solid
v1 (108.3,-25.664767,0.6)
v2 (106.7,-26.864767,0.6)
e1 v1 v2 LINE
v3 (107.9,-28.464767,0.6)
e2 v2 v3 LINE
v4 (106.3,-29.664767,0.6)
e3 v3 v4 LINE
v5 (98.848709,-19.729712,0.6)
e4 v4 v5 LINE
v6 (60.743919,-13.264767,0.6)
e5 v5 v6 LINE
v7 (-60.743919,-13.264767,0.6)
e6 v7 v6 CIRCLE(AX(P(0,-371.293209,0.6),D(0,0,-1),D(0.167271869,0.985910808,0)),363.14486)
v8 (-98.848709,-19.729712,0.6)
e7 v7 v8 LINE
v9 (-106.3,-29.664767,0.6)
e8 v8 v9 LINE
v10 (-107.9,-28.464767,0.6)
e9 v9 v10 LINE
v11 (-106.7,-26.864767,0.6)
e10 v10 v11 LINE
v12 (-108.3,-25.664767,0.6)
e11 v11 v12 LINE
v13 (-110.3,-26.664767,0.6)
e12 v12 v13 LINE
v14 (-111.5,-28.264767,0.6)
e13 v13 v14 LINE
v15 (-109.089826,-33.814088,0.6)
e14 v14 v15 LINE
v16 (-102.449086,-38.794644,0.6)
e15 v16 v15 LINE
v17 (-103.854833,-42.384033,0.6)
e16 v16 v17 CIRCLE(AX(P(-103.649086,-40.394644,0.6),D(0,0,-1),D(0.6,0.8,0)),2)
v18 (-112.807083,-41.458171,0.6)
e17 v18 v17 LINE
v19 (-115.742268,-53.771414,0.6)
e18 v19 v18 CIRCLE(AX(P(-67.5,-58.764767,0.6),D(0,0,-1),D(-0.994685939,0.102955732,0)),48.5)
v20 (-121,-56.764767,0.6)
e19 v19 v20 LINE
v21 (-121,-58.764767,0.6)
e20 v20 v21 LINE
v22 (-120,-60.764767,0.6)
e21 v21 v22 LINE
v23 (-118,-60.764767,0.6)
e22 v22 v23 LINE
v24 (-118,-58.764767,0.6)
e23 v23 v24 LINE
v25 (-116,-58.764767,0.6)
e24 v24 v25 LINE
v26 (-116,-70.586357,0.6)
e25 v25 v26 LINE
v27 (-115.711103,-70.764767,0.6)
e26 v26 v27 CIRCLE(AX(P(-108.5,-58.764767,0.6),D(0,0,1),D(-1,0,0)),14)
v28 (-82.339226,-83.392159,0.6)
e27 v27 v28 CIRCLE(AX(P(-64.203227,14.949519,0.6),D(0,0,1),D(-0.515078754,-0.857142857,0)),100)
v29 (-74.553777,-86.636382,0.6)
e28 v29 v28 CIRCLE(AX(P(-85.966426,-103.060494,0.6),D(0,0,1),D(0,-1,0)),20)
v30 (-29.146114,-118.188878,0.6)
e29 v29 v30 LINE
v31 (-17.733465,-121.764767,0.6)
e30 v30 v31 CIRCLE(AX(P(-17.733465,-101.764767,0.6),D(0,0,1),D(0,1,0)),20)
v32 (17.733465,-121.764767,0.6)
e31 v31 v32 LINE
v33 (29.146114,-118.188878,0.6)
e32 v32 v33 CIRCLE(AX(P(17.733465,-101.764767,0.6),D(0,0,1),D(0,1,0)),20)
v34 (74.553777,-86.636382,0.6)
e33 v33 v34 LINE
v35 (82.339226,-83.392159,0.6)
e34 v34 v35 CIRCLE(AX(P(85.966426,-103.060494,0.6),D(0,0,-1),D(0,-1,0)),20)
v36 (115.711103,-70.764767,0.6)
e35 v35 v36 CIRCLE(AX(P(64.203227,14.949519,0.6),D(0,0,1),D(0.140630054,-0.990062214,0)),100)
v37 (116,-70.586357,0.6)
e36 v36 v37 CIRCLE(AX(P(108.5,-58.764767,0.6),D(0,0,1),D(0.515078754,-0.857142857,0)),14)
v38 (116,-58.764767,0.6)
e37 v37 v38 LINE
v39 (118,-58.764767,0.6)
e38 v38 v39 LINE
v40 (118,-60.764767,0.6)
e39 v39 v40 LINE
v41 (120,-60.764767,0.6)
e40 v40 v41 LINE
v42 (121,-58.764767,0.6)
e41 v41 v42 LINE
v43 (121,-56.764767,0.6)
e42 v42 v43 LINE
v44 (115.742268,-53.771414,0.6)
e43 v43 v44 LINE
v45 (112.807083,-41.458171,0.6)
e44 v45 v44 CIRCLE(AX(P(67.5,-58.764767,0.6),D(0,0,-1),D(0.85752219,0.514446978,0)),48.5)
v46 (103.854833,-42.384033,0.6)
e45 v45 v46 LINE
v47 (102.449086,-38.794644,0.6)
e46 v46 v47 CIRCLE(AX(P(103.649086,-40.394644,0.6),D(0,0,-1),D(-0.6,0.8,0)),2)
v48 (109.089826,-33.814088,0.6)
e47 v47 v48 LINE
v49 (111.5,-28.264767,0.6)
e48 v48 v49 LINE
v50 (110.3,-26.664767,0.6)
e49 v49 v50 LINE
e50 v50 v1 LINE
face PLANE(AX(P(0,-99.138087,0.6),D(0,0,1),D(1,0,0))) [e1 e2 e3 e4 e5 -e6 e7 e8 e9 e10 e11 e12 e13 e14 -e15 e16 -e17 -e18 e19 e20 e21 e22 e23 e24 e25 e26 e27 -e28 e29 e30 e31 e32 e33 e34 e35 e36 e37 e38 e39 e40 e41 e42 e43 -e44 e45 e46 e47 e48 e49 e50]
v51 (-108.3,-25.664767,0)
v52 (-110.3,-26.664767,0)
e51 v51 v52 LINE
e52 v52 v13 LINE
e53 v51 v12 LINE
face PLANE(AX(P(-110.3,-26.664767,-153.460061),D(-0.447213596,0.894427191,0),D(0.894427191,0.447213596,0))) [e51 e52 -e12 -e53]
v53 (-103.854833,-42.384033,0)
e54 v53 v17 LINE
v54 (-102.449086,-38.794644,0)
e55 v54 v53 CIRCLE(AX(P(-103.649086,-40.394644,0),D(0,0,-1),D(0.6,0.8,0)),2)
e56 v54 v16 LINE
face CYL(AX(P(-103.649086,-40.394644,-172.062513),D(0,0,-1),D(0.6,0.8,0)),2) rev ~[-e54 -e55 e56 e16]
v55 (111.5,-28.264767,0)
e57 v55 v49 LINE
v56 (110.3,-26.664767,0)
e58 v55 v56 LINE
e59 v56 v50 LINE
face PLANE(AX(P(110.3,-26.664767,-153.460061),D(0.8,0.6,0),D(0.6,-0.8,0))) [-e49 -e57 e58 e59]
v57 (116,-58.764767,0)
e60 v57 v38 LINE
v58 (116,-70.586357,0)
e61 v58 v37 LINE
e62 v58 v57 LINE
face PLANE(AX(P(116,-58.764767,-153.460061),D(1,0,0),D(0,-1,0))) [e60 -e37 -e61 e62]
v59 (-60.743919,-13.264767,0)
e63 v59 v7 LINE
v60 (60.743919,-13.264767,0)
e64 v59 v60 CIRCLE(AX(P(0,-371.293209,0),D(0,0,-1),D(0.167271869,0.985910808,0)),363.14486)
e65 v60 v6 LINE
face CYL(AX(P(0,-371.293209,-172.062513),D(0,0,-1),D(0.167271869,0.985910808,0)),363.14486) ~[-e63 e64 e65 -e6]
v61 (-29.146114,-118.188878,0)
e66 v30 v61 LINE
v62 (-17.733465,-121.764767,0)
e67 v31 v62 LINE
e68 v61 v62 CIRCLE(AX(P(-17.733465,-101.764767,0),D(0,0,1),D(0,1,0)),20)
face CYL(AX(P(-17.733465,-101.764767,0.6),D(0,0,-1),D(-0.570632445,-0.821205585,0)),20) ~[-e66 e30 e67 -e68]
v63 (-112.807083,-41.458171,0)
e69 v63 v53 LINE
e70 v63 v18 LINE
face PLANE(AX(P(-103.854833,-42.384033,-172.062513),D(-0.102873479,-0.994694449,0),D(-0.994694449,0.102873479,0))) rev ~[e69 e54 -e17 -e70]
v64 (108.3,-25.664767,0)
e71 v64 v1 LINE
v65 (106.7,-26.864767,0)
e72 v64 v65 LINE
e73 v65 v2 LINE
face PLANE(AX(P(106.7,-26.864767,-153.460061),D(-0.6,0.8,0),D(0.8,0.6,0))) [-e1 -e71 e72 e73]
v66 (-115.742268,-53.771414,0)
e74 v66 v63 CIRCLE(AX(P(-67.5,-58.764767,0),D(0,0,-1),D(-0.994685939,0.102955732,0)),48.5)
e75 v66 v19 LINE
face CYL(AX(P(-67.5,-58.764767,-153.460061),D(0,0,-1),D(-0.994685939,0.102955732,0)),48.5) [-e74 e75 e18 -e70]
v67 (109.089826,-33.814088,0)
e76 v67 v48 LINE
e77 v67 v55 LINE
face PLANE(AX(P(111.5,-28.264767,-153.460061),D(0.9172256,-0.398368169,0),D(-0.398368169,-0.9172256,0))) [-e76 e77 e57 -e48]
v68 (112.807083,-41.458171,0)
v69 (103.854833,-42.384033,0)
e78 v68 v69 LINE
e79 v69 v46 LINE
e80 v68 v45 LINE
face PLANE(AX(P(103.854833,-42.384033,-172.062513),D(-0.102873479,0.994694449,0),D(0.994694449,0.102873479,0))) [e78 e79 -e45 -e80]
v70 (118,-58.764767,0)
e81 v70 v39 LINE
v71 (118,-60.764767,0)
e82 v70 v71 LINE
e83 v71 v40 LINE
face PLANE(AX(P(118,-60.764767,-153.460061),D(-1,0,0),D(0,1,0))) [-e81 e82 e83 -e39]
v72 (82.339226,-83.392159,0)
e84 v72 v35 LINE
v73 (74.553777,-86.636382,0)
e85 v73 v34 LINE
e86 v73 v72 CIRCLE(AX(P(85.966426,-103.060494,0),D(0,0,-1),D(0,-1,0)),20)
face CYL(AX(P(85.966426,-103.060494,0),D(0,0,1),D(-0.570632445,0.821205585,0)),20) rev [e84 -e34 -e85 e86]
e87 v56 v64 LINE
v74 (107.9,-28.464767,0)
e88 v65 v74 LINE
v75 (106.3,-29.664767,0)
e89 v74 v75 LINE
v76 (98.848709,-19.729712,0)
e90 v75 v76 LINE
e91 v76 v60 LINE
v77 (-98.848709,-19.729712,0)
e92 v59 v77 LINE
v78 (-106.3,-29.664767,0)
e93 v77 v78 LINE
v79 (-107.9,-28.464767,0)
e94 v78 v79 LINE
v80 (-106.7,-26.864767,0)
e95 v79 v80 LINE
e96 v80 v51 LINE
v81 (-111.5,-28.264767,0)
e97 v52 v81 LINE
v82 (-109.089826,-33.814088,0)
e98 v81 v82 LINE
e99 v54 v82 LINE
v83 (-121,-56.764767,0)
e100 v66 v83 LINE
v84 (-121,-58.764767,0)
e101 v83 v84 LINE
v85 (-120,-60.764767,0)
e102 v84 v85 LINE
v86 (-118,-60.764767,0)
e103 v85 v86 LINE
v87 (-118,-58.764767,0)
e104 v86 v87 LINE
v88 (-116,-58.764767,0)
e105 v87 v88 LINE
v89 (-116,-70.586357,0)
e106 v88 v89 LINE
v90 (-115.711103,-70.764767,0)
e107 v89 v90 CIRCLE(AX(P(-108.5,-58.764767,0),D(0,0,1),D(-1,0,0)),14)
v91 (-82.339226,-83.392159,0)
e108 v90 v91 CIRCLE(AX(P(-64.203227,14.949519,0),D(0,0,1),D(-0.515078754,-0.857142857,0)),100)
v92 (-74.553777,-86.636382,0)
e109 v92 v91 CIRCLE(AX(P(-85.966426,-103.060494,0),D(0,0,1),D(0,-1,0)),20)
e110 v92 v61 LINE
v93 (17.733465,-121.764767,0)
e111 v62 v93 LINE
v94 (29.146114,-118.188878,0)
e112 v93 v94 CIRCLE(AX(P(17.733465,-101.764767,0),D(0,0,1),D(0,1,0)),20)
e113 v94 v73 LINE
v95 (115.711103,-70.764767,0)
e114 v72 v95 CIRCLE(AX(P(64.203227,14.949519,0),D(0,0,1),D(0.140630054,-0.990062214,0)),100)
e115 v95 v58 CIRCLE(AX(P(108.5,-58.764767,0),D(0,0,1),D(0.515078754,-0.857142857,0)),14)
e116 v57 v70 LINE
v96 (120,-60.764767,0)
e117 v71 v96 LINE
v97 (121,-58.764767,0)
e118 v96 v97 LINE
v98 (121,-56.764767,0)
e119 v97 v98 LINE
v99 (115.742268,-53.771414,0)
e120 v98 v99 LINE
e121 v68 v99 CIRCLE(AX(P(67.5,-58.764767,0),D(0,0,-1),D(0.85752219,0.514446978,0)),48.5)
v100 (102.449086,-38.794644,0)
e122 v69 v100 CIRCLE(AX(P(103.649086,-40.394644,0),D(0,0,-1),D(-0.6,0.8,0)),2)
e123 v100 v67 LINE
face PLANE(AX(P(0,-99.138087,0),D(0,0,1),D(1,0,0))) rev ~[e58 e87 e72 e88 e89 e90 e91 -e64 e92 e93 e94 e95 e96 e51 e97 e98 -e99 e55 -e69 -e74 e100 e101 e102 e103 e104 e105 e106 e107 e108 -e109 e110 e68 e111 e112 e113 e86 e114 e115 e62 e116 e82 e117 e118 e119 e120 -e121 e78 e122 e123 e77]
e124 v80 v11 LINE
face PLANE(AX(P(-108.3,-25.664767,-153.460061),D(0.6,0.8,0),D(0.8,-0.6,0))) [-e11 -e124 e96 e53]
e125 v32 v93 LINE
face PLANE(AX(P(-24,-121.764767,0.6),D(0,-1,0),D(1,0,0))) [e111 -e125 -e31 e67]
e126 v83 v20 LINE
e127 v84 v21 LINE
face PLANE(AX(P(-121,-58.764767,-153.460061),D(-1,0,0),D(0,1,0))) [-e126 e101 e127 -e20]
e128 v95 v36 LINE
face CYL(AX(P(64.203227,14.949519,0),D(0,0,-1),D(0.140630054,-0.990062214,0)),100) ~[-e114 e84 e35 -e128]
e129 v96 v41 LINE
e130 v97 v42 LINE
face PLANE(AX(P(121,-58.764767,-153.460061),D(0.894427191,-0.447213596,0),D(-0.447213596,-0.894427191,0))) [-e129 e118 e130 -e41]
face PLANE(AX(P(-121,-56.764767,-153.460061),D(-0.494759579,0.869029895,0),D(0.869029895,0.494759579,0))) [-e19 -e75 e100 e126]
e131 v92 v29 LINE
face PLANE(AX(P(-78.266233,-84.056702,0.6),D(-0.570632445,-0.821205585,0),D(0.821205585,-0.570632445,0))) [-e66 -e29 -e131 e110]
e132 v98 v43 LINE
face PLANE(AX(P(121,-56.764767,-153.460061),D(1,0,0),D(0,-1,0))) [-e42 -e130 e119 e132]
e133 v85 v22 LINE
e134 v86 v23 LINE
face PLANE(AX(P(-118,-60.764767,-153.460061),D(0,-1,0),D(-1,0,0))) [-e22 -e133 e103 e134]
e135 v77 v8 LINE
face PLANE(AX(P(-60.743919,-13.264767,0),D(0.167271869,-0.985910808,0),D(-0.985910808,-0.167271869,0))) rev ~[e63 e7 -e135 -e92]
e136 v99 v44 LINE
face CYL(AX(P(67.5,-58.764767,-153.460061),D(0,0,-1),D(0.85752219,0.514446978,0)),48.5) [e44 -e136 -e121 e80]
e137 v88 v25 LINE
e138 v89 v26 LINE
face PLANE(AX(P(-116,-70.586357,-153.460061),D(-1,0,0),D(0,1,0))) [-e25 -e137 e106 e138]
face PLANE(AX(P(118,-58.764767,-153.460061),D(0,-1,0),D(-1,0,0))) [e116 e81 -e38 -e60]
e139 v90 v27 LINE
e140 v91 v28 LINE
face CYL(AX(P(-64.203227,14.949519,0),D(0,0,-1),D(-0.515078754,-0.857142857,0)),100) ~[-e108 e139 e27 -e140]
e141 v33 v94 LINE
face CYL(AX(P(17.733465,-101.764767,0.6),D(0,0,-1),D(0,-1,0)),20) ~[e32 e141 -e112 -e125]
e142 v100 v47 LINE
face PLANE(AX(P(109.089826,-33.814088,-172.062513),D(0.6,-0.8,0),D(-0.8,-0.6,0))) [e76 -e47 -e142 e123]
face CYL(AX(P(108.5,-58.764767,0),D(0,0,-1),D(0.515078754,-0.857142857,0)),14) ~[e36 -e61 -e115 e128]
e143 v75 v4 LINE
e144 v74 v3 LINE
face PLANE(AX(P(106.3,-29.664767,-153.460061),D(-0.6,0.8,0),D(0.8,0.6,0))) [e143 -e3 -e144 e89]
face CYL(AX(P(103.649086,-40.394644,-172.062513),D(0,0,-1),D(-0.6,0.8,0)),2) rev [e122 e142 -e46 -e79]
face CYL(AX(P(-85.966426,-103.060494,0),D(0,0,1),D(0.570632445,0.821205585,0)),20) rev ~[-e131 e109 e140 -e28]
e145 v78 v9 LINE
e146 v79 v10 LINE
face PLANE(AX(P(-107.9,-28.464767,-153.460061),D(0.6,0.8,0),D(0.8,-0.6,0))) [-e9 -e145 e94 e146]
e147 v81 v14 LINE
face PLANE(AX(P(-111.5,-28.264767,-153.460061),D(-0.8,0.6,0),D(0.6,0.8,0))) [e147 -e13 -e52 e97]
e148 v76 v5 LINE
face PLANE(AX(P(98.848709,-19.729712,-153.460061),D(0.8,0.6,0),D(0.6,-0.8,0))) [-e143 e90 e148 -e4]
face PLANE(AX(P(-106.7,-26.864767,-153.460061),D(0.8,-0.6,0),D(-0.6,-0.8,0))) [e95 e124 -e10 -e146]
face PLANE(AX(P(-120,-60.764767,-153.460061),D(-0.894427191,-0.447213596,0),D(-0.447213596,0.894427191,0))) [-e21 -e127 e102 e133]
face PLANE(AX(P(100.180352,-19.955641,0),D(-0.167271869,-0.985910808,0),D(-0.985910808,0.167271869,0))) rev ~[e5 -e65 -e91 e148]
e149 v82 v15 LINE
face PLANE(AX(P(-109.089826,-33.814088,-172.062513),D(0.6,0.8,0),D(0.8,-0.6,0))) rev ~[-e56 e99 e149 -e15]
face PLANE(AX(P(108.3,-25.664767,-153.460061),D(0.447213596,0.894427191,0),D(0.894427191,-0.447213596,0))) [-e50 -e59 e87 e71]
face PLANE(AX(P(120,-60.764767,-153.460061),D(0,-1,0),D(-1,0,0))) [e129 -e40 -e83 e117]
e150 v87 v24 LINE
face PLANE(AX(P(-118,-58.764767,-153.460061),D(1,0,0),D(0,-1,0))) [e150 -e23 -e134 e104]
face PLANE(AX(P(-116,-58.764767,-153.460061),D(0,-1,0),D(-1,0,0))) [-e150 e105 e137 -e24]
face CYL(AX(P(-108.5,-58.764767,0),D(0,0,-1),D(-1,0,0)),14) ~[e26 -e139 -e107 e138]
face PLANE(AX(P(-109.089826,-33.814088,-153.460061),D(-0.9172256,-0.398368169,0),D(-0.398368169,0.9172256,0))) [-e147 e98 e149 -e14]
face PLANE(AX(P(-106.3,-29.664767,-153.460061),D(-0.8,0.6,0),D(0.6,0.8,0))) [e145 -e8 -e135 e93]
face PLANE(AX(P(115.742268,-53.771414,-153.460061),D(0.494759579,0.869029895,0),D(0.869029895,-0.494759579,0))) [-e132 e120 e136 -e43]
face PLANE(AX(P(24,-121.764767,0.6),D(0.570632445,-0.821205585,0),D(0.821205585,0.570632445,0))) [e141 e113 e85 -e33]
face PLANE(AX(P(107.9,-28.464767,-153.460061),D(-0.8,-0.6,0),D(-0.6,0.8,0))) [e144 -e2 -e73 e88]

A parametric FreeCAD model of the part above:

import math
import FreeCAD as App
import Part
import Sketcher
Q = App.Units.Quantity


def edges_at(feature, points):
    """Names of the edges that pass closest to the given points."""
    edges = feature.Shape.Edges
    near = lambda p: min(range(len(edges)), key=lambda i: edges[i].distToShape(Part.Vertex(*p))[0])
    return sorted({f"Edge{near(p) + 1}" for p in points})

doc = App.newDocument("Part")
params = doc.addObject("Spreadsheet::Sheet", "Params")
for row, (alias, value) in enumerate([
    ("sketch1_radius", "100 mm"),
    ("sketch1_radius2", "14 mm"),
    ("sketch1_radius3", "55 mm"),
    ("sketch1_radius4", "20 mm"),
    ("sketch1_radius5", "25 mm"),
    ("pad1_length", "0.6 mm"),
    ("sketch2_radius", "20 mm"),
    ("sketch2_radius2", "55 mm"),
    ("sketch2_radius3", "14 mm"),
    ("sketch2_radius4", "48.5 mm"),
    ("sketch2_width", "2 mm"),
    ("sketch3_width", "48 mm"),
    ("pad2_length", "0.6 mm"),
    ("fillet_radius", "20 mm"),
    ("sketch4_height", "30 mm"),
    ("sketch5_radius", "2 mm"),
    ("sketch5_radius2", "48.5 mm"),
    ("sketch5_length", "9 mm"),
    ("sketch5_width", "1.2 mm"),
], start=1):
    params.set(f"A{row}", alias)
    params.set(f"B{row}", "=" + value)
    params.setAlias(f"B{row}", alias)

body = doc.addObject("PartDesign::Body", "Body")

sketch1 = body.newObject("Sketcher::SketchObject", "Sketch")
sketch1.AttachmentSupport = (doc.getObject("XY_Plane"), [""])
sketch1.MapMode = "FlatFace"
sketch1.addGeometry(Part.LineSegment(App.Vector(-24, -91.764767, 0), App.Vector(24, -91.764767, 0)), False)
sketch1.addGeometry(Part.LineSegment(App.Vector(24, -91.764767, 0), App.Vector(78.266233, -84.056702, 0)), False)
sketch1.addGeometry(Part.ArcOfCircle(Part.Circle(App.Vector(64.203227, 14.949519, 0), App.Vector(0, 0, 1), 100), math.radians(-81.915694), math.radians(-58.997281)), False)
sketch1.addGeometry(Part.ArcOfCircle(Part.Circle(App.Vector(108.5, -58.764767, 0), App.Vector(0, 0, 1), 14), math.radians(-58.997281), math.radians(0)), False)
sketch1.addGeometry(Part.ArcOfCircle(Part.Circle(App.Vector(67.5, -58.764767, 0), App.Vector(0, 0, 1), 55), math.radians(0), math.radians(33.055731)), False)
sketch1.addGeometry(Part.ArcOfCircle(Part.Circle(App.Vector(96.834914, -39.673858, 0), App.Vector(0, 0, 1), 20), math.radians(33.055731), math.radians(80.370763)), False)
sketch1.addGeometry(Part.LineSegment(App.Vector(100.180352, -19.955641, 0), App.Vector(60.743919, -13.264767, 0)), False)
sketch1.addGeometry(Part.ArcOfCircle(Part.Circle(App.Vector(64.925716, 11.383003, 0), App.Vector(0, 0, 1), 25), math.radians(-149.156501), math.radians(-99.629237)), False)
sketch1.addGeometry(Part.ArcOfCircle(Part.Circle(App.Vector(24.572883, -12.713654, 0), App.Vector(0, 0, 1), 22), math.radians(30.843499), math.radians(83.818374)), False)
sketch1.addGeometry(Part.LineSegment(App.Vector(26.941855, 9.158428, 0), App.Vector(17, 10.235233, 0)), False)
sketch1.addGeometry(Part.LineSegment(App.Vector(17, 10.235233, 0), App.Vector(10, 0, 0)), False)
sketch1.addGeometry(Part.LineSegment(App.Vector(10, 0, 0), App.Vector(-10, 0, 0)), False)
sketch1.addGeometry(Part.LineSegment(App.Vector(-10, 0, 0), App.Vector(-17, 10.235233, 0)), False)
sketch1.addGeometry(Part.LineSegment(App.Vector(-17, 10.235233, 0), App.Vector(-26.941855, 9.158428, 0)), False)
sketch1.addGeometry(Part.ArcOfCircle(Part.Circle(App.Vector(-24.572883, -12.713654, 0), App.Vector(0, 0, 1), 22), math.radians(96.181626), math.radians(149.156501)), False)
sketch1.addGeometry(Part.ArcOfCircle(Part.Circle(App.Vector(-64.925716, 11.383003, 0), App.Vector(0, 0, 1), 25), math.radians(-80.370763), math.radians(-30.843499)), False)
sketch1.addGeometry(Part.LineSegment(App.Vector(-60.743919, -13.264767, 0), App.Vector(-100.180352, -19.955641, 0)), False)
sketch1.addGeometry(Part.ArcOfCircle(Part.Circle(App.Vector(-96.834914, -39.673858, 0), App.Vector(0, 0, 1), 20), math.radians(99.629237), math.radians(146.944269)), False)
sketch1.addGeometry(Part.ArcOfCircle(Part.Circle(App.Vector(-67.5, -58.764767, 0), App.Vector(0, 0, 1), 55), math.radians(146.944269), math.radians(180)), False)
sketch1.addGeometry(Part.ArcOfCircle(Part.Circle(App.Vector(-108.5, -58.764767, 0), App.Vector(0, 0, 1), 14), math.radians(180), math.radians(238.997281)), False)
sketch1.addGeometry(Part.ArcOfCircle(Part.Circle(App.Vector(-64.203227, 14.949519, 0), App.Vector(0, 0, 1), 100), math.radians(-121.002719), math.radians(-98.084306)), False)
sketch1.addGeometry(Part.LineSegment(App.Vector(-78.266233, -84.056702, 0), App.Vector(-24, -91.764767, 0)), False)
sketch1.addConstraint(Sketcher.Constraint("Coincident", 0, 2, 1, 1))
sketch1.addConstraint(Sketcher.Constraint("Tangent", 1, 2, 2, 1))
sketch1.addConstraint(Sketcher.Constraint("Tangent", 2, 2, 3, 1))
sketch1.addConstraint(Sketcher.Constraint("Tangent", 3, 2, 4, 1))
sketch1.addConstraint(Sketcher.Constraint("Tangent", 4, 2, 5, 1))
sketch1.addConstraint(Sketcher.Constraint("Tangent", 5, 2, 6, 1))
sketch1.addConstraint(Sketcher.Constraint("Tangent", 6, 2, 7, 2))
sketch1.addConstraint(Sketcher.Constraint("Tangent", 7, 1, 8, 1))
sketch1.addConstraint(Sketcher.Constraint("Tangent", 8, 2, 9, 1))
sketch1.addConstraint(Sketcher.Constraint("Coincident", 9, 2, 10, 1))
sketch1.addConstraint(Sketcher.Constraint("Coincident", 10, 2, 11, 1))
sketch1.addConstraint(Sketcher.Constraint("Coincident", 11, 2, 12, 1))
sketch1.addConstraint(Sketcher.Constraint("Coincident", 12, 2, 13, 1))
sketch1.addConstraint(Sketcher.Constraint("Tangent", 13, 2, 14, 1))
sketch1.addConstraint(Sketcher.Constraint("Tangent", 14, 2, 15, 2))
sketch1.addConstraint(Sketcher.Constraint("Tangent", 15, 1, 16, 1))
sketch1.addConstraint(Sketcher.Constraint("Tangent", 16, 2, 17, 1))
sketch1.addConstraint(Sketcher.Constraint("Tangent", 17, 2, 18, 1))
sketch1.addConstraint(Sketcher.Constraint("Tangent", 18, 2, 19, 1))
sketch1.addConstraint(Sketcher.Constraint("Tangent", 19, 2, 20, 1))
sketch1.addConstraint(Sketcher.Constraint("Tangent", 20, 2, 21, 1))
sketch1.addConstraint(Sketcher.Constraint("Coincident", 21, 2, 0, 1))
sketch1.addConstraint(Sketcher.Constraint("Horizontal", 0))
sketch1.addConstraint(Sketcher.Constraint("Horizontal", 11))
sketch1.addConstraint(Sketcher.Constraint("Equal", 8, 14))
sketch1.addConstraint(Sketcher.Constraint("Equal", 7, 15))
sketch1.addConstraint(Sketcher.Constraint("Equal", 5, 17))
sketch1.addConstraint(Sketcher.Constraint("Equal", 4, 18))
sketch1.addConstraint(Sketcher.Constraint("Equal", 3, 19))
sketch1.addConstraint(Sketcher.Constraint("Equal", 2, 20))
sketch1.addConstraint(Sketcher.Constraint("Symmetric", 10, 2, 11, 2, -1, 1))
sketch1.addConstraint(Sketcher.Constraint("Symmetric", 8, 3, 14, 3, -2))
sketch1.addConstraint(Sketcher.Constraint("Symmetric", 5, 3, 17, 3, -2))
sketch1.addConstraint(Sketcher.Constraint("Symmetric", 3, 3, 19, 3, -2))
sketch1.addConstraint(Sketcher.Constraint("Symmetric", 9, 2, 12, 2, -2))
sketch1.addConstraint(Sketcher.Constraint("Symmetric", 1, 2, 20, 2, -2))
sketch1.addConstraint(Sketcher.Constraint("Horizontal", 3, 3, 4, 3))
sketch1.addConstraint(Sketcher.Constraint("Horizontal", 7, 3, 15, 3))
sketch1.addConstraint(Sketcher.Constraint("Radius", 2, Q("100 mm")))
sketch1.addConstraint(Sketcher.Constraint("Radius", 3, Q("14 mm")))
sketch1.addConstraint(Sketcher.Constraint("Radius", 4, Q("55 mm")))
sketch1.addConstraint(Sketcher.Constraint("Radius", 5, Q("20 mm")))
sketch1.addConstraint(Sketcher.Constraint("Radius", 7, Q("25 mm")))
sketch1.addConstraint(Sketcher.Constraint("Radius", 8, Q("22 mm")))
sketch1.addConstraint(Sketcher.Constraint("DistanceX", 0, 1, 0, 2, Q("48 mm")))
sketch1.addConstraint(Sketcher.Constraint("DistanceX", 11, 2, 11, 1, Q("20 mm")))
sketch1.addConstraint(Sketcher.Constraint("Distance", 6, Q("40 mm")))
sketch1.addConstraint(Sketcher.Constraint("Distance", 9, Q("10 mm")))
sketch1.addConstraint(Sketcher.Constraint("DistanceX", -1, 1, 9, 2, Q("17 mm")))
sketch1.addConstraint(Sketcher.Constraint("DistanceX", 18, 3, 4, 3, Q("135 mm")))
sketch1.addConstraint(Sketcher.Constraint("DistanceY", 0, 2, 4, 3, Q("33 mm")))
sketch1.addConstraint(Sketcher.Constraint("DistanceY", 3, 3, 4, 2, Q("30 mm")))
sketch1.addConstraint(Sketcher.Constraint("DistanceY", 19, 2, 19, 3, Q("12 mm")))
sketch1.addConstraint(Sketcher.Constraint("Distance", 10, Q("12.4 mm")))
sketch1.addConstraint(Sketcher.Constraint("DistanceY", 17, 2, 15, 1, Q("15.5 mm")))
sketch1.addConstraint(Sketcher.Constraint("DistanceX", 14, 3, 7, 3, Q("89.498599 mm")))
sketch1.setExpression("Constraints[38]", "Params.sketch1_radius")
sketch1.setExpression("Constraints[39]", "Params.sketch1_radius2")
sketch1.setExpression("Constraints[40]", "Params.sketch1_radius3")
sketch1.setExpression("Constraints[41]", "Params.sketch1_radius4")
sketch1.setExpression("Constraints[42]", "Params.sketch1_radius5")
pad1 = body.newObject("PartDesign::Pad", "Pad")
pad1.Profile = sketch1
pad1.setExpression("Length", "Params.pad1_length")

sketch2 = body.newObject("Sketcher::SketchObject", "Sketch001")
sketch2.AttachmentSupport = (doc.getObject("XY_Plane"), [""])
sketch2.MapMode = "FlatFace"
sketch2.AttachmentOffset = App.Placement(App.Vector(0, 0, 0.6), App.Rotation())
sketch2.addGeometry(Part.LineSegment(App.Vector(-121, -58.764767, 0), App.Vector(-121, -56.764767, 0)), False)
sketch2.addGeometry(Part.LineSegment(App.Vector(-121, -56.764767, 0), App.Vector(-115.742268, -53.771414, 0)), False)
sketch2.addGeometry(Part.ArcOfCircle(Part.Circle(App.Vector(-67.5, -58.764767, 0), App.Vector(0, 0, 1), 48.5), math.radians(149.039503), math.radians(174.0906)), False)
sketch2.addGeometry(Part.LineSegment(App.Vector(-109.089826, -33.814088, 0), App.Vector(-111.5, -28.264767, 0)), False)
sketch2.addGeometry(Part.LineSegment(App.Vector(-111.5, -28.264767, 0), App.Vector(-110.3, -26.664767, 0)), False)
sketch2.addGeometry(Part.LineSegment(App.Vector(-110.3, -26.664767, 0), App.Vector(-108.3, -25.664767, 0)), False)
sketch2.addGeometry(Part.LineSegment(App.Vector(-108.3, -25.664767, 0), App.Vector(-106.7, -26.864767, 0)), False)
sketch2.addGeometry(Part.LineSegment(App.Vector(-106.7, -26.864767, 0), App.Vector(-107.9, -28.464767, 0)), False)
sketch2.addGeometry(Part.LineSegment(App.Vector(-107.9, -28.464767, 0), App.Vector(-106.3, -29.664767, 0)), False)
sketch2.addGeometry(Part.LineSegment(App.Vector(-106.3, -29.664767, 0), App.Vector(-98.848709, -19.729712, 0)), False)
sketch2.addGeometry(Part.LineSegment(App.Vector(-98.848709, -19.729712, 0), App.Vector(-100.180352, -19.955641, 0)), False)
sketch2.addGeometry(Part.ArcOfCircle(Part.Circle(App.Vector(-96.834914, -39.673858, 0), App.Vector(0, 0, 1), 20), math.radians(99.629237), math.radians(146.944269)), False)
sketch2.addGeometry(Part.ArcOfCircle(Part.Circle(App.Vector(-67.5, -58.764767, 0), App.Vector(0, 0, 1), 55), math.radians(146.944269), math.radians(180)), False)
sketch2.addGeometry(Part.ArcOfCircle(Part.Circle(App.Vector(-108.5, -58.764767, 0), App.Vector(0, 0, 1), 14), math.radians(-180), math.radians(-122.392365)), False)
sketch2.addGeometry(Part.LineSegment(App.Vector(-116, -70.586357, 0), App.Vector(-116, -58.764767, 0)), False)
sketch2.addGeometry(Part.LineSegment(App.Vector(-116, -58.764767, 0), App.Vector(-118, -58.764767, 0)), False)
sketch2.addGeometry(Part.LineSegment(App.Vector(-118, -58.764767, 0), App.Vector(-118, -60.764767, 0)), False)
sketch2.addGeometry(Part.LineSegment(App.Vector(-118, -60.764767, 0), App.Vector(-120, -60.764767, 0)), False)
sketch2.addGeometry(Part.LineSegment(App.Vector(-120, -60.764767, 0), App.Vector(-121, -58.764767, 0)), False)
sketch2.addGeometry(Part.LineSegment(App.Vector(110.3, -26.664767, 0), App.Vector(111.5, -28.264767, 0)), False)
sketch2.addGeometry(Part.LineSegment(App.Vector(111.5, -28.264767, 0), App.Vector(109.089826, -33.814088, 0)), False)
sketch2.addGeometry(Part.ArcOfCircle(Part.Circle(App.Vector(67.5, -58.764767, 0), App.Vector(0, 0, 1), 48.5), math.radians(5.9094), math.radians(30.960497)), False)
sketch2.addGeometry(Part.LineSegment(App.Vector(115.742268, -53.771414, 0), App.Vector(121, -56.764767, 0)), False)
sketch2.addGeometry(Part.LineSegment(App.Vector(121, -56.764767, 0), App.Vector(121, -58.764767, 0)), False)
sketch2.addGeometry(Part.LineSegment(App.Vector(121, -58.764767, 0), App.Vector(120, -60.764767, 0)), False)
sketch2.addGeometry(Part.LineSegment(App.Vector(120, -60.764767, 0), App.Vector(118, -60.764767, 0)), False)
sketch2.addGeometry(Part.LineSegment(App.Vector(118, -60.764767, 0), App.Vector(118, -58.764767, 0)), False)
sketch2.addGeometry(Part.LineSegment(App.Vector(118, -58.764767, 0), App.Vector(116, -58.764767, 0)), False)
sketch2.addGeometry(Part.LineSegment(App.Vector(116, -58.764767, 0), App.Vector(116, -70.586357, 0)), False)
sketch2.addGeometry(Part.ArcOfCircle(Part.Circle(App.Vector(108.5, -58.764767, 0), App.Vector(0, 0, 1), 14), math.radians(-57.607635), math.radians(0)), False)
sketch2.addGeometry(Part.ArcOfCircle(Part.Circle(App.Vector(67.5, -58.764767, 0), App.Vector(0, 0, 1), 55), math.radians(0), math.radians(33.055731)), False)
sketch2.addGeometry(Part.ArcOfCircle(Part.Circle(App.Vector(96.834914, -39.673858, 0), App.Vector(0, 0, 1), 20), math.radians(33.055731), math.radians(80.370763)), False)
sketch2.addGeometry(Part.LineSegment(App.Vector(100.180352, -19.955641, 0), App.Vector(98.848709, -19.729712, 0)), False)
sketch2.addGeometry(Part.LineSegment(App.Vector(98.848709, -19.729712, 0), App.Vector(106.3, -29.664767, 0)), False)
sketch2.addGeometry(Part.LineSegment(App.Vector(106.3, -29.664767, 0), App.Vector(107.9, -28.464767, 0)), False)
sketch2.addGeometry(Part.LineSegment(App.Vector(107.9, -28.464767, 0), App.Vector(106.7, -26.864767, 0)), False)
sketch2.addGeometry(Part.LineSegment(App.Vector(106.7, -26.864767, 0), App.Vector(108.3, -25.664767, 0)), False)
sketch2.addGeometry(Part.LineSegment(App.Vector(108.3, -25.664767, 0), App.Vector(110.3, -26.664767, 0)), False)
sketch2.addConstraint(Sketcher.Constraint("Coincident", 0, 2, 1, 1))
sketch2.addConstraint(Sketcher.Constraint("Coincident", 1, 2, 2, 2))
sketch2.addConstraint(Sketcher.Constraint("Coincident", 2, 1, 3, 1))
sketch2.addConstraint(Sketcher.Constraint("Coincident", 3, 2, 4, 1))
sketch2.addConstraint(Sketcher.Constraint("Coincident", 4, 2, 5, 1))
sketch2.addConstraint(Sketcher.Constraint("Coincident", 5, 2, 6, 1))
sketch2.addConstraint(Sketcher.Constraint("Coincident", 6, 2, 7, 1))
sketch2.addConstraint(Sketcher.Constraint("Coincident", 7, 2, 8, 1))
sketch2.addConstraint(Sketcher.Constraint("Coincident", 8, 2, 9, 1))
sketch2.addConstraint(Sketcher.Constraint("Coincident", 9, 2, 10, 1))
sketch2.addConstraint(Sketcher.Constraint("Tangent", 10, 2, 11, 1))
sketch2.addConstraint(Sketcher.Constraint("Tangent", 11, 2, 12, 1))
sketch2.addConstraint(Sketcher.Constraint("Tangent", 12, 2, 13, 1))
sketch2.addConstraint(Sketcher.Constraint("Coincident", 13, 2, 14, 1))
sketch2.addConstraint(Sketcher.Constraint("Coincident", 14, 2, 15, 1))
sketch2.addConstraint(Sketcher.Constraint("Coincident", 15, 2, 16, 1))
sketch2.addConstraint(Sketcher.Constraint("Coincident", 16, 2, 17, 1))
sketch2.addConstraint(Sketcher.Constraint("Coincident", 17, 2, 18, 1))
sketch2.addConstraint(Sketcher.Constraint("Coincident", 18, 2, 0, 1))
sketch2.addConstraint(Sketcher.Constraint("Coincident", 19, 2, 20, 1))
sketch2.addConstraint(Sketcher.Constraint("Coincident", 20, 2, 21, 2))
sketch2.addConstraint(Sketcher.Constraint("Coincident", 21, 1, 22, 1))
sketch2.addConstraint(Sketcher.Constraint("Coincident", 22, 2, 23, 1))
sketch2.addConstraint(Sketcher.Constraint("Coincident", 23, 2, 24, 1))
sketch2.addConstraint(Sketcher.Constraint("Coincident", 24, 2, 25, 1))
sketch2.addConstraint(Sketcher.Constraint("Coincident", 25, 2, 26, 1))
sketch2.addConstraint(Sketcher.Constraint("Coincident", 26, 2, 27, 1))
sketch2.addConstraint(Sketcher.Constraint("Coincident", 27, 2, 28, 1))
sketch2.addConstraint(Sketcher.Constraint("Coincident", 28, 2, 29, 1))
sketch2.addConstraint(Sketcher.Constraint("Tangent", 29, 2, 30, 1))
sketch2.addConstraint(Sketcher.Constraint("Tangent", 30, 2, 31, 1))
sketch2.addConstraint(Sketcher.Constraint("Tangent", 31, 2, 32, 1))
sketch2.addConstraint(Sketcher.Constraint("Coincident", 32, 2, 33, 1))
sketch2.addConstraint(Sketcher.Constraint("Coincident", 33, 2, 34, 1))
sketch2.addConstraint(Sketcher.Constraint("Coincident", 34, 2, 35, 1))
sketch2.addConstraint(Sketcher.Constraint("Coincident", 35, 2, 36, 1))
sketch2.addConstraint(Sketcher.Constraint("Coincident", 36, 2, 37, 1))
sketch2.addConstraint(Sketcher.Constraint("Coincident", 37, 2, 19, 1))
sketch2.addConstraint(Sketcher.Constraint("Vertical", 0))
sketch2.addConstraint(Sketcher.Constraint("Vertical", 14))
sketch2.addConstraint(Sketcher.Constraint("Horizontal", 15))
sketch2.addConstraint(Sketcher.Constraint("Vertical", 16))
sketch2.addConstraint(Sketcher.Constraint("Horizontal", 17))
sketch2.addConstraint(Sketcher.Constraint("Vertical", 23))
sketch2.addConstraint(Sketcher.Constraint("Horizontal", 25))
sketch2.addConstraint(Sketcher.Constraint("Vertical", 26))
sketch2.addConstraint(Sketcher.Constraint("Horizontal", 27))
sketch2.addConstraint(Sketcher.Constraint("Vertical", 28))
sketch2.addConstraint(Sketcher.Constraint("Coincident", 12, 3, 2, 3))
sketch2.addConstraint(Sketcher.Constraint("Coincident", 30, 3, 21, 3))
sketch2.addConstraint(Sketcher.Constraint("Equal", 2, 21))
sketch2.addConstraint(Sketcher.Constraint("Equal", 13, 29))
sketch2.addConstraint(Sketcher.Constraint("Equal", 12, 30))
sketch2.addConstraint(Sketcher.Constraint("Equal", 11, 31))
sketch2.addConstraint(Sketcher.Constraint("Symmetric", 2, 3, 21, 3, -2))
sketch2.addConstraint(Sketcher.Constraint("Symmetric", 3, 2, 19, 2, -2))
sketch2.addConstraint(Sketcher.Constraint("Symmetric", 0, 2, 22, 2, -2))
sketch2.addConstraint(Sketcher.Constraint("Symmetric", 17, 2, 24, 2, -2))
sketch2.addConstraint(Sketcher.Constraint("Symmetric", 15, 2, 26, 2, -2))
sketch2.addConstraint(Sketcher.Constraint("Symmetric", 13, 2, 28, 2, -2))
sketch2.addConstraint(Sketcher.Constraint("Symmetric", 10, 2, 31, 2, -2))
sketch2.addConstraint(Sketcher.Constraint("Symmetric", 8, 2, 33, 2, -2))
sketch2.addConstraint(Sketcher.Constraint("Symmetric", 7, 2, 34, 2, -2))
sketch2.addConstraint(Sketcher.Constraint("Symmetric", 6, 2, 35, 2, -2))
sketch2.addConstraint(Sketcher.Constraint("Symmetric", 5, 2, 36, 2, -2))
sketch2.addConstraint(Sketcher.Constraint("Symmetric", 4, 2, 37, 2, -2))
sketch2.addConstraint(Sketcher.Constraint("Perpendicular", 4, 6))
sketch2.addConstraint(Sketcher.Constraint("Perpendicular", 6, 7))
sketch2.addConstraint(Sketcher.Constraint("Perpendicular", 7, 8))
sketch2.addConstraint(Sketcher.Constraint("Perpendicular", 8, 9))
sketch2.addConstraint(Sketcher.Constraint("Perpendicular", 5, 18))
sketch2.addConstraint(Sketcher.Constraint("Parallel", 19, 33))
sketch2.addConstraint(Sketcher.Constraint("Perpendicular", 24, 37))
sketch2.addConstraint(Sketcher.Constraint("Horizontal", 12, 3, 13, 3))
sketch2.addConstraint(Sketcher.Constraint("Horizontal", 12, 2, 14, 2))
sketch2.addConstraint(Sketcher.Constraint("Horizontal", 15, 2, 18, 2))
sketch2.addConstraint(Sketcher.Constraint("Horizontal", 2, 1, 20, 2))
sketch2.addConstraint(Sketcher.Constraint("Horizontal", 1, 2, 21, 1))
sketch2.addConstraint(Sketcher.Constraint("Equal", 15, 17))
sketch2.addConstraint(Sketcher.Constraint("Equal", 27, 0))
sketch2.addConstraint(Sketcher.Constraint("Equal", 0, 16))
sketch2.addConstraint(Sketcher.Constraint("Equal", 1, 3))
sketch2.addConstraint(Sketcher.Constraint("Equal", 4, 6))
sketch2.addConstraint(Sketcher.Constraint("Equal", 6, 7))
sketch2.addConstraint(Sketcher.Constraint("Equal", 7, 8))
sketch2.addConstraint(Sketcher.Constraint("Equal", 5, 18))
sketch2.addConstraint(Sketcher.Constraint("Radius", 11, Q("20 mm")))
sketch2.addConstraint(Sketcher.Constraint("Radius", 12, Q("55 mm")))
sketch2.addConstraint(Sketcher.Constraint("Radius", 13, Q("14 mm")))
sketch2.addConstraint(Sketcher.Constraint("Radius", 2, Q("48.5 mm")))
sketch2.addConstraint(Sketcher.Constraint("DistanceX", 15, 2, 15, 1, Q("2 mm")))
sketch2.addConstraint(Sketcher.Constraint("Distance", 4, Q("2 mm")))
sketch2.addConstraint(Sketcher.Constraint("DistanceX", 0, 2, -1, 1, Q("121 mm")))
sketch2.addConstraint(Sketcher.Constraint("DistanceX", 13, 2, -1, 1, Q("116 mm")))
sketch2.addConstraint(Sketcher.Constraint("DistanceX", 2, 3, 21, 3, Q("135 mm")))
sketch2.addConstraint(Sketcher.Constraint("DistanceX", 3, 2, 13, 3, Q("3 mm")))
sketch2.addConstraint(Sketcher.Constraint("DistanceX", 5, 2, 8, 2, Q("2 mm")))
sketch2.addConstraint(Sketcher.Constraint("DistanceY", 12, 2, 11, 2, Q("30 mm")))
sketch2.addConstraint(Sketcher.Constraint("DistanceY", 0, 2, 3, 2, Q("28.5 mm")))
sketch2.addConstraint(Sketcher.Constraint("Distance", 9, Q("12.418818 mm")))
sketch2.addConstraint(Sketcher.Constraint("DistanceX", 1, 2, -1, 1, Q("115.742268 mm")))
sketch2.addConstraint(Sketcher.Constraint("DistanceY", 2, 1, -1, 1, Q("33.814088 mm")))
sketch2.setExpression("Constraints[86]", "Params.sketch2_radius")
sketch2.setExpression("Constraints[87]", "Params.sketch2_radius2")
sketch2.setExpression("Constraints[88]", "Params.sketch2_radius3")
sketch2.setExpression("Constraints[89]", "Params.sketch2_radius4")
sketch2.setExpression("Constraints[90]", "Params.sketch2_width")
pocket1 = body.newObject("PartDesign::Pocket", "Pocket")
pocket1.Profile = sketch2
pocket1.Type = "ThroughAll"
pocket1.Midplane = True

sketch3 = body.newObject("Sketcher::SketchObject", "Sketch002")
sketch3.AttachmentSupport = (doc.getObject("XY_Plane"), [""])
sketch3.MapMode = "FlatFace"
sketch3.AttachmentOffset = App.Placement(App.Vector(0, 0, 0.6), App.Rotation())
sketch3.addGeometry(Part.LineSegment(App.Vector(-78.266233, -84.056702, 0), App.Vector(-24, -121.764767, 0)), False)
sketch3.addGeometry(Part.LineSegment(App.Vector(-24, -121.764767, 0), App.Vector(24, -121.764767, 0)), False)
sketch3.addGeometry(Part.LineSegment(App.Vector(24, -121.764767, 0), App.Vector(78.266233, -84.056702, 0)), False)
sketch3.addGeometry(Part.LineSegment(App.Vector(78.266233, -84.056702, 0), App.Vector(24, -91.764767, 0)), False)
sketch3.addGeometry(Part.LineSegment(App.Vector(24, -91.764767, 0), App.Vector(-24, -91.764767, 0)), False)
sketch3.addGeometry(Part.LineSegment(App.Vector(-24, -91.764767, 0), App.Vector(-78.266233, -84.056702, 0)), False)
sketch3.addConstraint(Sketcher.Constraint("Coincident", 0, 2, 1, 1))
sketch3.addConstraint(Sketcher.Constraint("Coincident", 1, 2, 2, 1))
sketch3.addConstraint(Sketcher.Constraint("Coincident", 2, 2, 3, 1))
sketch3.addConstraint(Sketcher.Constraint("Coincident", 3, 2, 4, 1))
sketch3.addConstraint(Sketcher.Constraint("Coincident", 4, 2, 5, 1))
sketch3.addConstraint(Sketcher.Constraint("Coincident", 5, 2, 0, 1))
sketch3.addConstraint(Sketcher.Constraint("Horizontal", 1))
sketch3.addConstraint(Sketcher.Constraint("Horizontal", 4))
sketch3.addConstraint(Sketcher.Constraint("Symmetric", 2, 2, 5, 2, -2))
sketch3.addConstraint(Sketcher.Constraint("Vertical", 1, 2, 3, 2))
sketch3.addConstraint(Sketcher.Constraint("Vertical", 0, 2, 4, 2))
sketch3.addConstraint(Sketcher.Constraint("Equal", 0, 2))
sketch3.addConstraint(Sketcher.Constraint("DistanceX", 1, 1, 1, 2, Q("48 mm")))
sketch3.addConstraint(Sketcher.Constraint("DistanceY", 1, 2, 3, 2, Q("30 mm")))
sketch3.addConstraint(Sketcher.Constraint("Distance", 0, Q("66.081178 mm")))
sketch3.addConstraint(Sketcher.Constraint("Distance", 3, Q("54.810932 mm")))
sketch3.addConstraint(Sketcher.Constraint("DistanceY", 0, 2, -1, 1, Q("121.764767 mm")))
sketch3.setExpression("Constraints[12]", "Params.sketch3_width")
pad2 = body.newObject("PartDesign::Pad", "Pad001")
pad2.Profile = sketch3
pad2.setExpression("Length", "Params.pad2_length")
pad2.Reversed = True
doc.recompute()

fillet = body.newObject("PartDesign::Fillet", "Fillet")
fillet.Base = (pad2, edges_at(pad2, [
    (-24, -121.765, 0.3),
    (24, -121.765, 0.3),
    (78.266, -84.057, 0.3),
    (-78.266, -84.057, 0.3),
]))
fillet.setExpression("Radius", "Params.fillet_radius")

sketch4 = body.newObject("Sketcher::SketchObject", "Sketch003")
sketch4.AttachmentSupport = (doc.getObject("XY_Plane"), [""])
sketch4.MapMode = "FlatFace"
sketch4.AttachmentOffset = App.Placement(App.Vector(0, 0, 0.6), App.Rotation())
sketch4.addGeometry(Part.LineSegment(App.Vector(-60.743919, 16.735233, 0), App.Vector(-60.743919, -13.264767, 0)), False)
sketch4.addGeometry(Part.ArcOfCircle(Part.Circle(App.Vector(0, -371.293209, 0), App.Vector(0, 0, 1), 363.14486), math.radians(80.370763), math.radians(99.629237)), False)
sketch4.addGeometry(Part.LineSegment(App.Vector(60.743919, -13.264767, 0), App.Vector(60.743919, 16.735233, 0)), False)
sketch4.addGeometry(Part.LineSegment(App.Vector(60.743919, 16.735233, 0), App.Vector(-60.743919, 16.735233, 0)), False)
sketch4.addConstraint(Sketcher.Constraint("Coincident", 0, 2, 1, 2))
sketch4.addConstraint(Sketcher.Constraint("Coincident", 1, 1, 2, 1))
sketch4.addConstraint(Sketcher.Constraint("Coincident", 2, 2, 3, 1))
sketch4.addConstraint(Sketcher.Constraint("Coincident", 3, 2, 0, 1))
sketch4.addConstraint(Sketcher.Constraint("Vertical", 0))
sketch4.addConstraint(Sketcher.Constraint("Vertical", 2))
sketch4.addConstraint(Sketcher.Constraint("Horizontal", 3))
sketch4.addConstraint(Sketcher.Constraint("Symmetric", 0, 2, 1, 1, -2))
sketch4.addConstraint(Sketcher.Constraint("DistanceY", 0, 2, 0, 1, Q("30 mm")))
sketch4.addConstraint(Sketcher.Constraint("Radius", 1, Q("363.14486 mm")))
sketch4.addConstraint(Sketcher.Constraint("DistanceX", 3, 2, 3, 1, Q("121.487838 mm")))
sketch4.addConstraint(Sketcher.Constraint("DistanceY", 1, 3, -1, 1, Q("371.293209 mm")))
sketch4.setExpression("Constraints[8]", "Params.sketch4_height")
pocket2 = body.newObject("PartDesign::Pocket", "Pocket001")
pocket2.Profile = sketch4
pocket2.Type = "ThroughAll"
pocket2.Midplane = True

sketch5 = body.newObject("Sketcher::SketchObject", "Sketch004")
sketch5.AttachmentSupport = (doc.getObject("XY_Plane"), [""])
sketch5.MapMode = "FlatFace"
sketch5.AttachmentOffset = App.Placement(App.Vector(0, 0, 0.6), App.Rotation())
sketch5.addGeometry(Part.LineSegment(App.Vector(-102.449086, -38.794644, 0), App.Vector(-109.089826, -33.814088, 0)), False)
sketch5.addGeometry(Part.ArcOfCircle(Part.Circle(App.Vector(-67.5, -58.764767, 0), App.Vector(0, 0, 1), 48.5), math.radians(149.039503), math.radians(159.093927)), False)
sketch5.addGeometry(Part.LineSegment(App.Vector(-112.807083, -41.458171, 0), App.Vector(-103.854833, -42.384033, 0)), False)
sketch5.addGeometry(Part.ArcOfCircle(Part.Circle(App.Vector(-103.649086, -40.394644, 0), App.Vector(0, 0, 1), 2), math.radians(-95.904662), math.radians(53.130102)), False)
sketch5.addGeometry(Part.LineSegment(App.Vector(103.854833, -42.384033, 0), App.Vector(112.807083, -41.458171, 0)), False)
sketch5.addGeometry(Part.ArcOfCircle(Part.Circle(App.Vector(67.5, -58.764767, 0), App.Vector(0, 0, 1), 48.5), math.radians(20.906073), math.radians(30.960497)), False)
sketch5.addGeometry(Part.LineSegment(App.Vector(109.089826, -33.814088, 0), App.Vector(102.449086, -38.794644, 0)), False)
sketch5.addGeometry(Part.ArcOfCircle(Part.Circle(App.Vector(103.649086, -40.394644, 0), App.Vector(0, 0, 1), 2), math.radians(126.869898), math.radians(275.904662)), False)
sketch5.addConstraint(Sketcher.Constraint("Coincident", 0, 2, 1, 1))
sketch5.addConstraint(Sketcher.Constraint("Coincident", 1, 2, 2, 1))
sketch5.addConstraint(Sketcher.Constraint("Tangent", 2, 2, 3, 1))
sketch5.addConstraint(Sketcher.Constraint("Tangent", 3, 2, 0, 1))
sketch5.addConstraint(Sketcher.Constraint("Coincident", 4, 2, 5, 1))
sketch5.addConstraint(Sketcher.Constraint("Coincident", 5, 2, 6, 1))
sketch5.addConstraint(Sketcher.Constraint("Tangent", 6, 2, 7, 1))
sketch5.addConstraint(Sketcher.Constraint("Tangent", 7, 2, 4, 1))
sketch5.addConstraint(Sketcher.Constraint("Equal", 1, 5))
sketch5.addConstraint(Sketcher.Constraint("Equal", 3, 7))
sketch5.addConstraint(Sketcher.Constraint("Symmetric", 1, 3, 5, 3, -2))
sketch5.addConstraint(Sketcher.Constraint("Symmetric", 3, 3, 7, 3, -2))
sketch5.addConstraint(Sketcher.Constraint("Horizontal", 1, 2, 4, 2))
sketch5.addConstraint(Sketcher.Constraint("Horizontal", 0, 2, 5, 2))
sketch5.addConstraint(Sketcher.Constraint("Radius", 3, Q("2 mm")))
sketch5.addConstraint(Sketcher.Constraint("Radius", 1, Q("48.5 mm")))
sketch5.addConstraint(Sketcher.Constraint("Distance", 2, Q("9 mm")))
sketch5.addConstraint(Sketcher.Constraint("DistanceX", 1, 3, 5, 3, Q("135 mm")))
sketch5.addConstraint(Sketcher.Constraint("DistanceX", 3, 3, 3, 2, Q("1.2 mm")))
sketch5.addConstraint(Sketcher.Constraint("DistanceY", 0, 2, -1, 1, Q("33.814088 mm")))
sketch5.addConstraint(Sketcher.Constraint("DistanceY", 1, 2, -1, 1, Q("41.458171 mm")))
sketch5.addConstraint(Sketcher.Constraint("DistanceX", 3, 3, 7, 3, Q("207.298172 mm")))
sketch5.setExpression("Constraints[14]", "Params.sketch5_radius")
sketch5.setExpression("Constraints[15]", "Params.sketch5_radius2")
sketch5.setExpression("Constraints[16]", "Params.sketch5_length")
sketch5.setExpression("Constraints[18]", "Params.sketch5_width")
pocket3 = body.newObject("PartDesign::Pocket", "Pocket002")
pocket3.Profile = sketch5
pocket3.Type = "ThroughAll"
pocket3.Midplane = True

doc.recompute()
